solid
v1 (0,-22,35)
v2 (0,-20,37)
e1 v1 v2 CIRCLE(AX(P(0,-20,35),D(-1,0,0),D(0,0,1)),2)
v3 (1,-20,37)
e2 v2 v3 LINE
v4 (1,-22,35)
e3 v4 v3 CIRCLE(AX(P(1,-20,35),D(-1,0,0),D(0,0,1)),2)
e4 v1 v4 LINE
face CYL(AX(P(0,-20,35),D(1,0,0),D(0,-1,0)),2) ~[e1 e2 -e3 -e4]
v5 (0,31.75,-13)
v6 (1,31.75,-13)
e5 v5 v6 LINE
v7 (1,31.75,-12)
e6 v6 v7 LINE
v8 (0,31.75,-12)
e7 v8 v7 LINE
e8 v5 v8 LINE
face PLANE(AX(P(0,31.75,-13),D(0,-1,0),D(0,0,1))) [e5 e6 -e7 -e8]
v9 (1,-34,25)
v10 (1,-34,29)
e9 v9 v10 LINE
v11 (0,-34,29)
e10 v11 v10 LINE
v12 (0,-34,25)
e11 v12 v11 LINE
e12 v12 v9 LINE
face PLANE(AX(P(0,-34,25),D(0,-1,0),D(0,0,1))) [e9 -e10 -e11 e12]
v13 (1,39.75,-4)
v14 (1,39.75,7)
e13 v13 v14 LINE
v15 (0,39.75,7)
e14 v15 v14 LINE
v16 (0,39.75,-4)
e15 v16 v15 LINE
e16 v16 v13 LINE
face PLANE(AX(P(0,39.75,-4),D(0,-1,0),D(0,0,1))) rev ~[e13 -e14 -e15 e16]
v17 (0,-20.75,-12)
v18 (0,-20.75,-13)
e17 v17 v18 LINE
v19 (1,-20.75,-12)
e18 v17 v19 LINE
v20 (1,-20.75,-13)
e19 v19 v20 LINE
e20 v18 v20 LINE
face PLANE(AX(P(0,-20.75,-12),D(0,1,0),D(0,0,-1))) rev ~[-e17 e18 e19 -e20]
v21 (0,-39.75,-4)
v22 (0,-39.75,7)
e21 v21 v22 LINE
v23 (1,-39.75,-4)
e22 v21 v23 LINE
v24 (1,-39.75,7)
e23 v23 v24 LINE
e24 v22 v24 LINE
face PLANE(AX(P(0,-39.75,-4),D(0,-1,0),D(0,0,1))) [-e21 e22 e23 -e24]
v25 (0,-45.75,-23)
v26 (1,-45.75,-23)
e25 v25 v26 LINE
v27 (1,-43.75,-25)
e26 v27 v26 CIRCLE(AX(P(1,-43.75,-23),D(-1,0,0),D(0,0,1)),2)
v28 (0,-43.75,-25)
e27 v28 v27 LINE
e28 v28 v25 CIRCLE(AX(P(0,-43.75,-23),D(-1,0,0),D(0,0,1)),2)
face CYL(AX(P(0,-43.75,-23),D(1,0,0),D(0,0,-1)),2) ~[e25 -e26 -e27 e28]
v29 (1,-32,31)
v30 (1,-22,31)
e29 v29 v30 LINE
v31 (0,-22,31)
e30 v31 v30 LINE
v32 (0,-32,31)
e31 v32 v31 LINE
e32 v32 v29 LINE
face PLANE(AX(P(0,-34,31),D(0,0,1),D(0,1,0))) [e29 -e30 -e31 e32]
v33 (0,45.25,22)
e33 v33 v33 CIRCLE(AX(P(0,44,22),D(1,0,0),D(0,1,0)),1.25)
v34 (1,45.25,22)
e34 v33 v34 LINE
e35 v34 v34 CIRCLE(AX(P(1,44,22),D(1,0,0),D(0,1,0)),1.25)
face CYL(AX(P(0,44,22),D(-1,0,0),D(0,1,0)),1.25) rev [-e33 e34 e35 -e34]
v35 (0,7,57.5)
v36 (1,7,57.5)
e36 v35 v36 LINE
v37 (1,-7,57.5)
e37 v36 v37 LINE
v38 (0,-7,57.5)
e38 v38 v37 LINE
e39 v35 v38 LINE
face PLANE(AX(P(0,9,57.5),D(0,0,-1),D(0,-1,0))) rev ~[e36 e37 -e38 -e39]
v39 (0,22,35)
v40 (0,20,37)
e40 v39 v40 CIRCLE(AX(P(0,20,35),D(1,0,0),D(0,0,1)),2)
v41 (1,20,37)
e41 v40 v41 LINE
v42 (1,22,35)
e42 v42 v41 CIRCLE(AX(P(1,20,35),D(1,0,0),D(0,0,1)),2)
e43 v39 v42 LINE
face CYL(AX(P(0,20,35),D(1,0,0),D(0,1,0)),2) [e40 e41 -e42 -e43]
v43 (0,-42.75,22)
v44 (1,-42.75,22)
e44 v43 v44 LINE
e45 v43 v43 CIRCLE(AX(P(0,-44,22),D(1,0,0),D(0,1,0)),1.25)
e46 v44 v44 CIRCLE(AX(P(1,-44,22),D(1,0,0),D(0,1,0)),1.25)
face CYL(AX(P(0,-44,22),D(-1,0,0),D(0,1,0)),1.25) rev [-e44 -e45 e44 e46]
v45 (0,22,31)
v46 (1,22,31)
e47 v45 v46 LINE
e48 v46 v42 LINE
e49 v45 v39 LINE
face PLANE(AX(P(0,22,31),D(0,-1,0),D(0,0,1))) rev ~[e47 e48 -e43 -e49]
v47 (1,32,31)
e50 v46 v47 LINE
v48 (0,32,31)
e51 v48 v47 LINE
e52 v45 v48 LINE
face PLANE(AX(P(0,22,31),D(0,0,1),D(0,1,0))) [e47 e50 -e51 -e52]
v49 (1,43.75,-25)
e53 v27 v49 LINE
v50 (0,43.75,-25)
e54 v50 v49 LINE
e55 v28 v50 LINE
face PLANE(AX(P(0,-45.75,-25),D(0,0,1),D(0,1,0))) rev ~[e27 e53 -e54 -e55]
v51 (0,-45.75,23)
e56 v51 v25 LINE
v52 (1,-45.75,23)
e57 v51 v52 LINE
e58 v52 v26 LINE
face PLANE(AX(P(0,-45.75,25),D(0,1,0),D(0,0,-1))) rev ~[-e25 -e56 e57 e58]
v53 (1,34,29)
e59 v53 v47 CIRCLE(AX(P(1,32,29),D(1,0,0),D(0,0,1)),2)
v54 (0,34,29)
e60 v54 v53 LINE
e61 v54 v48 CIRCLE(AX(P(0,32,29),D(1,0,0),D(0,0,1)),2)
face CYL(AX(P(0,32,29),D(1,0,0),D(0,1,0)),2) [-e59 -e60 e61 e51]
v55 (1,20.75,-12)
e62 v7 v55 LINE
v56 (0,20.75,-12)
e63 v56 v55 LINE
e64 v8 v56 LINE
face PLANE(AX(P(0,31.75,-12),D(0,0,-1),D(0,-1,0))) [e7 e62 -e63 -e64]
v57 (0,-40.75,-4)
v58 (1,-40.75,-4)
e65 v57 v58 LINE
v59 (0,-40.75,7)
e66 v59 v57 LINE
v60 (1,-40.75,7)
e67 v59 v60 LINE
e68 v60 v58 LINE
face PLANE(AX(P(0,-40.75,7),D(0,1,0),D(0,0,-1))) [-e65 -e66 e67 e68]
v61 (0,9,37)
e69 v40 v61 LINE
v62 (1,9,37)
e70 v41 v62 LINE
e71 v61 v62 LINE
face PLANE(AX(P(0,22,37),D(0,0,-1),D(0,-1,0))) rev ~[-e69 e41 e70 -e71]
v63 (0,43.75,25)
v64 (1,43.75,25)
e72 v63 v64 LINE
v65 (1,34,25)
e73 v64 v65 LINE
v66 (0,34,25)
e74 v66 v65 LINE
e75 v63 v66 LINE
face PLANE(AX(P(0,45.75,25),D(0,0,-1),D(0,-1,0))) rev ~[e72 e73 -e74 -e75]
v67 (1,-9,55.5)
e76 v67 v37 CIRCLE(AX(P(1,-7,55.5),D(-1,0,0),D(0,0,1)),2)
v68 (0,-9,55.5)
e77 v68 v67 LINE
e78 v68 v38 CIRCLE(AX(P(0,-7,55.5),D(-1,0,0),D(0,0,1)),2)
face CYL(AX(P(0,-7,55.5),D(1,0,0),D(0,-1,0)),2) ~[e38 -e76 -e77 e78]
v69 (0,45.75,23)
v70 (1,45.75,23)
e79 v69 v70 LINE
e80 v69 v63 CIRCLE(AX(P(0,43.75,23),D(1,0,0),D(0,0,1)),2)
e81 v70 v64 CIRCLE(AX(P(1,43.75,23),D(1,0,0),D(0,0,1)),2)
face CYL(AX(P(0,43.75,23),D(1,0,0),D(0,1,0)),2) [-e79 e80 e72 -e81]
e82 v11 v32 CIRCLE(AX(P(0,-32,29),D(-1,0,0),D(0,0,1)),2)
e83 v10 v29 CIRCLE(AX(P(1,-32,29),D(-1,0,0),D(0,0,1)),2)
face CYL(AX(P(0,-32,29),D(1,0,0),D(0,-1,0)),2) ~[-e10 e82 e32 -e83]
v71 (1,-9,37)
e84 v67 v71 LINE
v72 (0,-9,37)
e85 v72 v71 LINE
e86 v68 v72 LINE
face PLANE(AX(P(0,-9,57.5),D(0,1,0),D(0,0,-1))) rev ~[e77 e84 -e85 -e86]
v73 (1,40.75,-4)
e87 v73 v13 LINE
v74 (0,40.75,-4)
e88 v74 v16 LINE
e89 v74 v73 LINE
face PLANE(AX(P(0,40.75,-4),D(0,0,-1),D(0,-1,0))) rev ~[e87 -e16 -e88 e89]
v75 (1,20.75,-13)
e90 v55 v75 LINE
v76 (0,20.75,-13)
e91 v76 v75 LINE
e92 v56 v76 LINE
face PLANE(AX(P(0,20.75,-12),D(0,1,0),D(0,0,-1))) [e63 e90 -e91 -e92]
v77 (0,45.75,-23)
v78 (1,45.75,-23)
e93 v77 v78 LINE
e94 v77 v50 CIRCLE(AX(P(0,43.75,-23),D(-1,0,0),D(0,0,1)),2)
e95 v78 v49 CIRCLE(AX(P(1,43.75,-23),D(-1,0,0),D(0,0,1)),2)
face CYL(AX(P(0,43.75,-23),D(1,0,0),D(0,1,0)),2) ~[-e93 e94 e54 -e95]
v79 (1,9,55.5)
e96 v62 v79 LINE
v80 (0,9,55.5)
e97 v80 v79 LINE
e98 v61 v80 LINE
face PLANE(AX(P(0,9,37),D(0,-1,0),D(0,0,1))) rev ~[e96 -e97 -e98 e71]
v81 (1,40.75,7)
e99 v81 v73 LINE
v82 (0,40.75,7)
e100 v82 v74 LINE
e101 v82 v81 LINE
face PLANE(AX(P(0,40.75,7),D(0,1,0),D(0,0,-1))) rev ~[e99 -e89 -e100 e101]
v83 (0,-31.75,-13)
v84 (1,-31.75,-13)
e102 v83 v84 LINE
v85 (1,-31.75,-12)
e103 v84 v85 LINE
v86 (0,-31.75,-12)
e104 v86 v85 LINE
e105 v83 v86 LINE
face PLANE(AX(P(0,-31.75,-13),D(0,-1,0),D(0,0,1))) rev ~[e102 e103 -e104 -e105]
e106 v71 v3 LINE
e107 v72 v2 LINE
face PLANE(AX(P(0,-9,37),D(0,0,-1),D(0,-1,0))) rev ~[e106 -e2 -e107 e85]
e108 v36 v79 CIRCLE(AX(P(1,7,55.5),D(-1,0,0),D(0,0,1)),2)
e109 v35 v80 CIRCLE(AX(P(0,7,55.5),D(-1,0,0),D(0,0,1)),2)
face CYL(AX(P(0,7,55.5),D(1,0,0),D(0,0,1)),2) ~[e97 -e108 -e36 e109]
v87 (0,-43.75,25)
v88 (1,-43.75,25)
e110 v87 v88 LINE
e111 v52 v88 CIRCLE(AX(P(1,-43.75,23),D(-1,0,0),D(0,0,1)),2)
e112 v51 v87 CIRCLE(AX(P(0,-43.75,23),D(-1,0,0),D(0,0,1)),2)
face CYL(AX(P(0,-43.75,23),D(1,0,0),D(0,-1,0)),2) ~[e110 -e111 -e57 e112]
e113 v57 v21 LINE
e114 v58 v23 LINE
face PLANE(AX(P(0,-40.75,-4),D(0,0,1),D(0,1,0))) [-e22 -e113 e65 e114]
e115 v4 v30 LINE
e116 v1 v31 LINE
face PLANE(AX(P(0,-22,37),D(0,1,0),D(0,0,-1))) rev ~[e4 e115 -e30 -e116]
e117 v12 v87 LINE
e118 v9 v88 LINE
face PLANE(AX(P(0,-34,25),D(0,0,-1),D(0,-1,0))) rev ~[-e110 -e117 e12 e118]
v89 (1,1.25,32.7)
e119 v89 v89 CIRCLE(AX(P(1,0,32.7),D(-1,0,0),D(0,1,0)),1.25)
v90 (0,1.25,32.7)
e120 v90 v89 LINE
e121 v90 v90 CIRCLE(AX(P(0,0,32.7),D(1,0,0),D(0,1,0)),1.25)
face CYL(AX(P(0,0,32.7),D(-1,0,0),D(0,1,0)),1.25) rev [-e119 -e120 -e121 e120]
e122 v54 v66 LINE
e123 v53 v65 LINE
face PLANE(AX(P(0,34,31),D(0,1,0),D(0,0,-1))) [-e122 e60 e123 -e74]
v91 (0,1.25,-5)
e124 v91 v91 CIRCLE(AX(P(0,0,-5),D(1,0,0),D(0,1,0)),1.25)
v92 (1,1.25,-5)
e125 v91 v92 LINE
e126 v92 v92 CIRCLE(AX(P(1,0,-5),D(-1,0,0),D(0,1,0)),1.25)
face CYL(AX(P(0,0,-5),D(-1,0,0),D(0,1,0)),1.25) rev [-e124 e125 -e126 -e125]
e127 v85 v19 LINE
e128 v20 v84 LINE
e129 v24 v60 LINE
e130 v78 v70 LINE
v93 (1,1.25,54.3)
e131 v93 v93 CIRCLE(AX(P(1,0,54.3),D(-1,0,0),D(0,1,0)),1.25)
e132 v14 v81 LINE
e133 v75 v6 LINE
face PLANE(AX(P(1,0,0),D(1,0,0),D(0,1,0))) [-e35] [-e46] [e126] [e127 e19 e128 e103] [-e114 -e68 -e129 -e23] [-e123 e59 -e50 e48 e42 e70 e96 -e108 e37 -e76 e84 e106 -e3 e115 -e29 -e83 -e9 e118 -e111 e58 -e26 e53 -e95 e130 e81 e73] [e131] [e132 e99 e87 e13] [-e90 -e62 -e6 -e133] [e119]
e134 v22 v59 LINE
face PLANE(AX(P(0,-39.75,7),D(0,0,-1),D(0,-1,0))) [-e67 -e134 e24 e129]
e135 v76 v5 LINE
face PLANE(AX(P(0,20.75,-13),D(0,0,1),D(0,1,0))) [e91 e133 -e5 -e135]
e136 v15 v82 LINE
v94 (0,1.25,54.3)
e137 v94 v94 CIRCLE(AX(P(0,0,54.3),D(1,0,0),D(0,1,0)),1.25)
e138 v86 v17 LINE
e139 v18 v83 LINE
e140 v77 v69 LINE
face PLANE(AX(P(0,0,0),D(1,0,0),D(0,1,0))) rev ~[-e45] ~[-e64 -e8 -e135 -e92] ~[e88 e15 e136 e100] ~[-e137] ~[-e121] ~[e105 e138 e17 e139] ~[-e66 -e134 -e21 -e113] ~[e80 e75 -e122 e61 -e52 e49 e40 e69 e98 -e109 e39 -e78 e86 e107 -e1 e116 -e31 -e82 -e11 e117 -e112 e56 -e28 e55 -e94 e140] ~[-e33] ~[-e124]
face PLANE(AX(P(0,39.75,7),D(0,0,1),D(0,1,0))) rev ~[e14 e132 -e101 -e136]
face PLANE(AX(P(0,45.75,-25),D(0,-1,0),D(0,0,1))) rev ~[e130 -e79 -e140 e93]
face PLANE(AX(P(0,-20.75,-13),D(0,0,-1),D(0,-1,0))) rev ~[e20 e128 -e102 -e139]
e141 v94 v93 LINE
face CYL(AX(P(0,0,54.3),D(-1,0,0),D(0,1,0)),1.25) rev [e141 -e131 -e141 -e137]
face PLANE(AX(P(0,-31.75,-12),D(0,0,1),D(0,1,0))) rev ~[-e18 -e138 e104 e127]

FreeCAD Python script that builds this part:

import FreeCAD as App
import Part
import Sketcher
from FreeCAD import Vector


def edges_at(feature, points):
    """Names of the edges that pass closest to the given points."""
    edges = feature.Shape.Edges
    near = lambda p: min(range(len(edges)), key=lambda i: edges[i].distToShape(Part.Vertex(*p))[0])
    return sorted({f"Edge{near(p) + 1}" for p in points})


def add_polygon(sketch, points):
    """Adds a closed chain of lines whose ends are joined by coincident constraints."""
    first, n = sketch.GeometryCount, len(points)
    for a, b in zip(points, points[1:] + points[:1]):
        sketch.addGeometry(Part.LineSegment(App.Vector(*a, 0), App.Vector(*b, 0)), False)
    for i in range(n):
        sketch.addConstraint(Sketcher.Constraint("Coincident", first + i, 2, first + (i + 1) % n, 1))

doc = App.newDocument("Part")
body = doc.addObject("PartDesign::Body", "Body")

sketch1 = body.newObject("Sketcher::SketchObject", "Sketch")
sketch1.AttachmentSupport = (doc.getObject("YZ_Plane"), [""])
sketch1.MapMode = "FlatFace"
add_polygon(sketch1, [(45.8, -25), (45.8, 25), (34, 25), (34, 31), (22, 31), (22, 37), (9, 37), (9, 57.5), (-9, 57.5), (-9, 37), (-22, 37), (-22, 31), (-34, 31), (-34, 25), (-45.8, 25), (-45.8, -25)])
sketch1.addGeometry(Part.Circle(Vector(-44, 22, 0), Vector(0, 0, 1), 1.2), False)
sketch1.addGeometry(Part.Circle(Vector(44, 22, 0), Vector(0, 0, 1), 1.2), False)
sketch1.addConstraint([
    Sketcher.Constraint("Vertical", 0),
    Sketcher.Constraint("Horizontal", 1),
    Sketcher.Constraint("Vertical", 2),
    Sketcher.Constraint("Horizontal", 3),
    Sketcher.Constraint("Vertical", 4),
    Sketcher.Constraint("Horizontal", 5),
    Sketcher.Constraint("Vertical", 6),
    Sketcher.Constraint("Horizontal", 7),
    Sketcher.Constraint("Vertical", 8),
    Sketcher.Constraint("Horizontal", 9),
    Sketcher.Constraint("Vertical", 10),
    Sketcher.Constraint("Horizontal", 11),
    Sketcher.Constraint("Vertical", 12),
    Sketcher.Constraint("Horizontal", 13),
    Sketcher.Constraint("Vertical", 14),
    Sketcher.Constraint("Horizontal", 15),
    Sketcher.Constraint("Equal", 16, 17),
    Sketcher.Constraint("Symmetric", 0, 2, 14, 2, -1, 1),
    Sketcher.Constraint("Symmetric", 16, 3, 17, 3, -2),
    Sketcher.Constraint("Symmetric", 5, 2, 8, 2, -2),
    Sketcher.Constraint("Symmetric", 3, 2, 10, 2, -2),
    Sketcher.Constraint("Symmetric", 1, 2, 12, 2, -2),
    Sketcher.Constraint("Equal", 2, 4),
    Sketcher.Constraint("Diameter", 16, 2.5),
    Sketcher.Constraint("DistanceX", 3, 2, 3, 1, 12.0),
    Sketcher.Constraint("DistanceY", 0, 1, 0, 2, 50.0),
    Sketcher.Constraint("DistanceY", 2, 1, 2, 2, 6.0),
    Sketcher.Constraint("DistanceX", 15, 1, 15, 2, 91.5),
    Sketcher.Constraint("DistanceX", -1, 1, 5, 2, 9.0),
    Sketcher.Constraint("DistanceY", 17, 3, 0, 2, 3.0),
    Sketcher.Constraint("DistanceX", 1, 2, 17, 3, 10.0),
    Sketcher.Constraint("DistanceX", 5, 2, 2, 2, 25.0),
    Sketcher.Constraint("DistanceY", 3, 2, 6, 2, 26.5),
])
pad1 = body.newObject("PartDesign::Pad", "Pad")
pad1.Profile = sketch1
pad1.Length = 1
doc.recompute()

fillet = body.newObject("PartDesign::Fillet", "Fillet")
fillet.Base = (pad1, edges_at(pad1, [
    (0.5, -45.75, 25),
    (0.5, -34, 31),
    (0.5, 34, 31),
    (0.5, 45.75, 25),
    (0.5, -45.75, -25),
    (0.5, 45.75, -25),
    (0.5, 9, 57.5),
    (0.5, -9, 57.5),
    (0.5, 22, 37),
    (0.5, -22, 37),
]))
fillet.Radius = 2

sketch2 = body.newObject("Sketcher::SketchObject", "Sketch001")
sketch2.AttachmentSupport = (doc.getObject("YZ_Plane"), [""])
sketch2.MapMode = "FlatFace"
add_polygon(sketch2, [(-20.8, -12), (-31.8, -12), (-31.8, -13), (-20.8, -13)])
add_polygon(sketch2, [(31.8, -13), (31.8, -12), (20.8, -12), (20.8, -13)])
add_polygon(sketch2, [(-39.8, -4), (-39.8, 7), (-40.8, 7), (-40.8, -4)])
add_polygon(sketch2, [(40.8, 7), (39.8, 7), (39.8, -4), (40.8, -4)])
sketch2.addGeometry(Part.Circle(Vector(0, -5, 0), Vector(0, 0, 1), 1.2), False)
sketch2.addGeometry(Part.Circle(Vector(0, 54.3, 0), Vector(0, 0, 1), 1.2), False)
sketch2.addGeometry(Part.Circle(Vector(0, 32.7, 0), Vector(0, 0, 1), 1.2), False)
sketch2.addConstraint([
    Sketcher.Constraint("Horizontal", 0),
    Sketcher.Constraint("Vertical", 1),
    Sketcher.Constraint("Horizontal", 2),
    Sketcher.Constraint("Vertical", 3),
    Sketcher.Constraint("Vertical", 4),
    Sketcher.Constraint("Horizontal", 5),
    Sketcher.Constraint("Vertical", 6),
    Sketcher.Constraint("Horizontal", 7),
    Sketcher.Constraint("Vertical", 8),
    Sketcher.Constraint("Horizontal", 9),
    Sketcher.Constraint("Vertical", 10),
    Sketcher.Constraint("Horizontal", 11),
    Sketcher.Constraint("Horizontal", 12),
    Sketcher.Constraint("Vertical", 13),
    Sketcher.Constraint("Horizontal", 14),
    Sketcher.Constraint("Vertical", 15),
    Sketcher.Constraint("Equal", 16, 17),
    Sketcher.Constraint("Equal", 17, 18),
    Sketcher.Constraint("Symmetric", 0, 2, 4, 2, -2),
    Sketcher.Constraint("Symmetric", 2, 2, 6, 2, -2),
    Sketcher.Constraint("Symmetric", 8, 2, 12, 2, -2),
    Sketcher.Constraint("Symmetric", 10, 2, 14, 2, -2),
    Sketcher.Constraint("PointOnObject", 16, 3, -2),
    Sketcher.Constraint("PointOnObject", 17, 3, -2),
    Sketcher.Constraint("PointOnObject", 18, 3, -2),
    Sketcher.Constraint("Equal", 14, 1),
    Sketcher.Constraint("Equal", 7, 8),
    Sketcher.Constraint("Diameter", 16, 2.5),
    Sketcher.Constraint("DistanceX", 0, 2, 0, 1, 11.0),
    Sketcher.Constraint("DistanceX", 9, 2, 9, 1, 1.0),
    Sketcher.Constraint("DistanceY", 16, 3, -1, 1, 5.0),
    Sketcher.Constraint("DistanceY", 0, 2, -1, 1, 12.0),
    Sketcher.Constraint("DistanceY", 16, 3, 8, 2, 12.0),
    Sketcher.Constraint("DistanceX", 9, 2, 0, 2, 9.0),
    Sketcher.Constraint("DistanceY", 16, 3, 18, 3, 37.7),
    Sketcher.Constraint("DistanceY", -1, 1, 17, 3, 54.3),
    Sketcher.Constraint("DistanceX", 3, 2, 4, 2, 52.5),
])
pocket1 = body.newObject("PartDesign::Pocket", "Pocket")
pocket1.Profile = sketch2
pocket1.Type = "UpToFirst"
pocket1.Reversed = True

doc.recompute()
